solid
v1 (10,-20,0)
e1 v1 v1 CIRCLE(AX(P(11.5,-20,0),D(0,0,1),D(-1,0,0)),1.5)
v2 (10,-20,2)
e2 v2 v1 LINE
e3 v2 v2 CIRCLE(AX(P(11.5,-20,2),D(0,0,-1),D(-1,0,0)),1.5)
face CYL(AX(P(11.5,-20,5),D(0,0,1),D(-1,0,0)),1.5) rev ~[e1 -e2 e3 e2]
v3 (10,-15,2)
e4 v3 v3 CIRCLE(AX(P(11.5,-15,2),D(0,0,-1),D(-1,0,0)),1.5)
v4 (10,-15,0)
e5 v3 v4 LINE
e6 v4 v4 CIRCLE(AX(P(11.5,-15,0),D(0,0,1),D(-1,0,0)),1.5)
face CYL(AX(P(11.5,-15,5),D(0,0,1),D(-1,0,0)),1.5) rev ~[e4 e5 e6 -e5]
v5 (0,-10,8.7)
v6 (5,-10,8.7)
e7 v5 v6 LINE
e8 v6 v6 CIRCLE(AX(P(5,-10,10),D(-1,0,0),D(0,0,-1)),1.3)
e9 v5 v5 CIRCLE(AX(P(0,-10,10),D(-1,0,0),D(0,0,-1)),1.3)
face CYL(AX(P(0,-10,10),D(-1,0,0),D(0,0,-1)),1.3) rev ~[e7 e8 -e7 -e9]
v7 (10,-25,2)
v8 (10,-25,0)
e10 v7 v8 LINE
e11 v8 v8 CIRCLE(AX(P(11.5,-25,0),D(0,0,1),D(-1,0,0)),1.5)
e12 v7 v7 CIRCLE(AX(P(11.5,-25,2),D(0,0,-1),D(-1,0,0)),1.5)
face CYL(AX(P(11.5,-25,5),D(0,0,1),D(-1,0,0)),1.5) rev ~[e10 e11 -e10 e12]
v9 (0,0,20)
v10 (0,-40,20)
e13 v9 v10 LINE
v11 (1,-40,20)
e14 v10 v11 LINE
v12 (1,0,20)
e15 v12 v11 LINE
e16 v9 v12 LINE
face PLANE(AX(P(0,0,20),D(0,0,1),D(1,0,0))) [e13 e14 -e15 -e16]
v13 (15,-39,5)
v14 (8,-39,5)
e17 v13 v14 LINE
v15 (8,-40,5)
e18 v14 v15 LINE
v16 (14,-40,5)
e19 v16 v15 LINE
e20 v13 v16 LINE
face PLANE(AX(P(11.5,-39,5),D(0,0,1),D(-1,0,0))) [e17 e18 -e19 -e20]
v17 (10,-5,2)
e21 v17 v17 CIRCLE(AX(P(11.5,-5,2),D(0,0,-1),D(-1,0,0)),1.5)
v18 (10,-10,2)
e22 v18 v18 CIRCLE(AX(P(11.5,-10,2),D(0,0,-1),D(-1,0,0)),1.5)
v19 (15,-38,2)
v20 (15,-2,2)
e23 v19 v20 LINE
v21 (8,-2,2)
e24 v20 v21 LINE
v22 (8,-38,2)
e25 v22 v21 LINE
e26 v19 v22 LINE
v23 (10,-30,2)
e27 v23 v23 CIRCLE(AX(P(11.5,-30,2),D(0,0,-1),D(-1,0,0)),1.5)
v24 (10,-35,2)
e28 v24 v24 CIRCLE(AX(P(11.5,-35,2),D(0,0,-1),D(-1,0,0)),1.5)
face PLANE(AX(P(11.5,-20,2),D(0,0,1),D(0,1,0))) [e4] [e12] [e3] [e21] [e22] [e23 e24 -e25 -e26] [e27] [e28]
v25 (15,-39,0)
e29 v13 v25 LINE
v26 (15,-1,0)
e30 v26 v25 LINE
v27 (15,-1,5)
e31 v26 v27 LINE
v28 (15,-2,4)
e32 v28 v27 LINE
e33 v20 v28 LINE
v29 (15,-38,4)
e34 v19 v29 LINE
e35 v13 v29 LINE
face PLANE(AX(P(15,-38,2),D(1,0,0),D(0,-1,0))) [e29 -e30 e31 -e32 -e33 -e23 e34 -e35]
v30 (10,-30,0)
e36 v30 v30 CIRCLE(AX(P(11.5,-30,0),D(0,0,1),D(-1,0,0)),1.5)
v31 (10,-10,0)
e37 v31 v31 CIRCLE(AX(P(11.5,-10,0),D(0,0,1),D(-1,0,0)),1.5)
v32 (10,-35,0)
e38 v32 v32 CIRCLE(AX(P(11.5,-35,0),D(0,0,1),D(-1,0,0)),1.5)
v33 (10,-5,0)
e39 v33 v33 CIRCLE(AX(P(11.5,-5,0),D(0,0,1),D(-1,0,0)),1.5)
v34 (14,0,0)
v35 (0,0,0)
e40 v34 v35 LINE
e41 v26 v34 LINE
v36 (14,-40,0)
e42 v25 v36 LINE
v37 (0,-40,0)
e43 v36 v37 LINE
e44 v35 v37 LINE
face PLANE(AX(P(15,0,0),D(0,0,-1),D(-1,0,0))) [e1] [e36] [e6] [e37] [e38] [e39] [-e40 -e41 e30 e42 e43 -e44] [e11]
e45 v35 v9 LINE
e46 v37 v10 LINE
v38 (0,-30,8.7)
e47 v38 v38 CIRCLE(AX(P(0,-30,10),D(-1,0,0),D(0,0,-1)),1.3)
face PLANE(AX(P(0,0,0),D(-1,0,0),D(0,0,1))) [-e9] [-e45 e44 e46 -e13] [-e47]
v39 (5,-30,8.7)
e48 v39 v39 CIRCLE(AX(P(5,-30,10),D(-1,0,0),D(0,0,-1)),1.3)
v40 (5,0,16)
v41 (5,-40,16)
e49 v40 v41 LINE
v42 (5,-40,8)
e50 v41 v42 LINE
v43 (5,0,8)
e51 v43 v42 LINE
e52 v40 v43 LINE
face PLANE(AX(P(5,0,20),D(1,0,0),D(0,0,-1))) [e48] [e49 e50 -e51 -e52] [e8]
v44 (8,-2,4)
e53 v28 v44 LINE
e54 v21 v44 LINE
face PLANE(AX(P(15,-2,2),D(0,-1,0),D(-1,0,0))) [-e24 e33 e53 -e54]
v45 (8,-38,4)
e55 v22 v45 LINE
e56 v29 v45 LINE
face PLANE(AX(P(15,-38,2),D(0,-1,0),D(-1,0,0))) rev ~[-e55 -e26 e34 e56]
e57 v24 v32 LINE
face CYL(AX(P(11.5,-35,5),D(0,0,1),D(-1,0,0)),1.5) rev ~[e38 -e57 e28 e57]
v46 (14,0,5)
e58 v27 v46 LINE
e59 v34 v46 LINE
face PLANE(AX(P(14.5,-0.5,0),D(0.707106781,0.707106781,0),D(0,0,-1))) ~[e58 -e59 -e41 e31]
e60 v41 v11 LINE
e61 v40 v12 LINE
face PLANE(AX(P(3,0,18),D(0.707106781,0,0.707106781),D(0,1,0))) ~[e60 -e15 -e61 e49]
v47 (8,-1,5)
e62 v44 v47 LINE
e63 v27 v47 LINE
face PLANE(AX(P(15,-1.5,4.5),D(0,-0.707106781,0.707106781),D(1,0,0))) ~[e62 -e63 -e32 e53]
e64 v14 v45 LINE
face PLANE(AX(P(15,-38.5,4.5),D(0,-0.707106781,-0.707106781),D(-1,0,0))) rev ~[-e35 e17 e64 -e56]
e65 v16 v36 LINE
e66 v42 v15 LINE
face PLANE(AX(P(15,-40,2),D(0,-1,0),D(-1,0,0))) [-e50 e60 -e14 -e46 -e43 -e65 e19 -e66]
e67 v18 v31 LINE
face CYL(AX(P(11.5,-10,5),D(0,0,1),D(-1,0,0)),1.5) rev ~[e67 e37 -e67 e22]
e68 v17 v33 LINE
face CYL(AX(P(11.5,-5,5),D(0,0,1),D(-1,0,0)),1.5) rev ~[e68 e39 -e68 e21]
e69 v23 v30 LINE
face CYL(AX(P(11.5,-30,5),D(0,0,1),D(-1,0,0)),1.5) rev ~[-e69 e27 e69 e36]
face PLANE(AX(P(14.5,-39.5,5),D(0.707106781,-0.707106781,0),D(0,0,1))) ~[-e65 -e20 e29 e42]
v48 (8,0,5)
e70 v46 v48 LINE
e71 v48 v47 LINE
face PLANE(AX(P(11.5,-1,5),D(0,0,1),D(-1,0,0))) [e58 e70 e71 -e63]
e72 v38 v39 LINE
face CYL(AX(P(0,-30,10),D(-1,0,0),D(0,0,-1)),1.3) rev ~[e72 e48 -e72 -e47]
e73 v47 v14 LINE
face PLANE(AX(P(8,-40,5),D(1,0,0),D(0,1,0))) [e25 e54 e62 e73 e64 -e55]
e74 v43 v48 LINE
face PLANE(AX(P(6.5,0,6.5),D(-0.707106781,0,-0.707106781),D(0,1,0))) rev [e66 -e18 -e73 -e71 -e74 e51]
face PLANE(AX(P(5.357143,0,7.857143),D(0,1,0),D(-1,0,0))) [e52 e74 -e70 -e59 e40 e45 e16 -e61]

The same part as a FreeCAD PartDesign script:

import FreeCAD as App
import Part
import Sketcher

V = App.Vector


def edges_at(feature, points):
    """Names of the edges that pass closest to the given points."""
    edges = feature.Shape.Edges
    near = lambda p: min(range(len(edges)), key=lambda i: edges[i].distToShape(Part.Vertex(*p))[0])
    return sorted({f"Edge{near(p) + 1}" for p in points})


def add_polygon(sketch, points):
    """Adds a closed chain of lines whose ends are joined by coincident constraints."""
    first, n = sketch.GeometryCount, len(points)
    for a, b in zip(points, points[1:] + points[:1]):
        sketch.addGeometry(Part.LineSegment(App.Vector(*a, 0), App.Vector(*b, 0)), False)
    for i in range(n):
        sketch.addConstraint(Sketcher.Constraint("Coincident", first + i, 2, first + (i + 1) % n, 1))

doc = App.newDocument("Part")
body = doc.addObject("PartDesign::Body", "Body")

# Sketch on XZ plane
sketch1 = doc.addObject("Sketcher::SketchObject", "Sketch")
body.addObject(sketch1)
sketch1.AttachmentSupport = (doc.XZ_Plane, [""])
sketch1.MapMode = "FlatFace"
add_polygon(sketch1, [(0, 20), (0, 0), (15, 0), (15, 5), (5, 5), (5, 20)])  # lines 0-5
sketch1.addConstraint([
    Sketcher.Constraint("Vertical", 0),
    Sketcher.Constraint("Horizontal", 1),
    Sketcher.Constraint("Vertical", 2),
    Sketcher.Constraint("Horizontal", 3),
    Sketcher.Constraint("Vertical", 4),
    Sketcher.Constraint("Horizontal", 5),
    Sketcher.Constraint("Coincident", 0, 2, -1, 1),
    Sketcher.Constraint("Equal", 5, 2),
    Sketcher.Constraint("Equal", 1, 4),
    Sketcher.Constraint("DistanceX", 1, 1, 1, 2, 15.0),
    Sketcher.Constraint("DistanceX", 3, 2, 3, 1, 10.0),
])
pad1 = doc.addObject("PartDesign::Pad", "Pad")
body.addObject(pad1)
pad1.Profile = sketch1
pad1.Length = 40

# Sketch on YZ plane
sketch2 = doc.addObject("Sketcher::SketchObject", "Sketch001")
body.addObject(sketch2)
sketch2.AttachmentSupport = (doc.YZ_Plane, [""])
sketch2.MapMode = "FlatFace"
sketch2.addGeometry([
    Part.Circle(V(-30, 10, 0), V(0, 0, 1), 1.3),
    Part.Circle(V(-10, 10, 0), V(0, 0, 1), 1.3),
], False)
sketch2.addConstraint([
    Sketcher.Constraint("Equal", 0, 1),
    Sketcher.Constraint("Horizontal", 0, 3, 1, 3),
    Sketcher.Constraint("Diameter", 0, 2.6),
    Sketcher.Constraint("DistanceX", 0, 3, -1, 1, 30.0),
    Sketcher.Constraint("DistanceY", -1, 1, 0, 3, 10.0),
    Sketcher.Constraint("DistanceX", 1, 3, -1, 1, 10.0),
])
pocket1 = doc.addObject("PartDesign::Pocket", "Pocket")
body.addObject(pocket1)
pocket1.Profile = sketch2
pocket1.Length = 5
pocket1.Reversed = True
doc.recompute()

chamfer = doc.addObject("PartDesign::Chamfer", "Chamfer")
body.addObject(chamfer)
chamfer.Base = (pocket1, edges_at(pocket1, [(5, -20, 5)]))
chamfer.Size = 3
doc.recompute()

chamfer2 = doc.addObject("PartDesign::Chamfer", "Chamfer001")
body.addObject(chamfer2)
chamfer2.Base = (chamfer, edges_at(chamfer, [(5, -20, 20)]))
chamfer2.Size = 4

# Sketch on XY plane
sketch3 = doc.addObject("Sketcher::SketchObject", "Sketch002")
body.addObject(sketch3)
sketch3.AttachmentSupport = (doc.XY_Plane, [""])
sketch3.MapMode = "FlatFace"
sketch3.AttachmentOffset = App.Placement(V(0, 0, 5), App.Rotation())
sketch3.addGeometry([
    Part.Circle(V(11.5, -35, 0), V(0, 0, 1), 1.5),  # 0
    Part.Circle(V(11.5, -30, 0), V(0, 0, 1), 1.5),  # 1
    Part.Circle(V(11.5, -25, 0), V(0, 0, 1), 1.5),  # 2
    Part.Circle(V(11.5, -20, 0), V(0, 0, 1), 1.5),  # 3
    Part.Circle(V(11.5, -15, 0), V(0, 0, 1), 1.5),  # 4
    Part.Circle(V(11.5, -10, 0), V(0, 0, 1), 1.5),  # 5
    Part.Circle(V(11.5, -5, 0), V(0, 0, 1), 1.5),  # 6
], False)
sketch3.addConstraint([
    Sketcher.Constraint("Equal", 0, 1),
    Sketcher.Constraint("Equal", 1, 2),
    Sketcher.Constraint("Equal", 2, 3),
    Sketcher.Constraint("Equal", 3, 4),
    Sketcher.Constraint("Equal", 4, 5),
    Sketcher.Constraint("Equal", 5, 6),
    Sketcher.Constraint("Vertical", 0, 3, 1, 3),
    Sketcher.Constraint("Vertical", 1, 3, 2, 3),
    Sketcher.Constraint("Vertical", 2, 3, 3, 3),
    Sketcher.Constraint("Vertical", 3, 3, 4, 3),
    Sketcher.Constraint("Vertical", 4, 3, 5, 3),
    Sketcher.Constraint("Vertical", 5, 3, 6, 3),
    Sketcher.Constraint("Diameter", 0, 3.0),
    Sketcher.Constraint("DistanceY", 0, 3, -1, 1, 35.0),
    Sketcher.Constraint("DistanceY", 1, 3, -1, 1, 30.0),
    Sketcher.Constraint("DistanceY", 2, 3, -1, 1, 25.0),
    Sketcher.Constraint("DistanceY", 3, 3, -1, 1, 20.0),
    Sketcher.Constraint("DistanceY", 4, 3, -1, 1, 15.0),
    Sketcher.Constraint("DistanceY", 5, 3, -1, 1, 10.0),
    Sketcher.Constraint("DistanceY", 6, 3, -1, 1, 5.0),
    Sketcher.Constraint("DistanceX", -1, 1, 0, 3, 11.5),
])
pocket2 = doc.addObject("PartDesign::Pocket", "Pocket001")
body.addObject(pocket2)
pocket2.Profile = sketch3
pocket2.Type = "ThroughAll"

# Sketch on XY plane
sketch4 = doc.addObject("Sketcher::SketchObject", "Sketch003")
body.addObject(sketch4)
sketch4.AttachmentSupport = (doc.XY_Plane, [""])
sketch4.MapMode = "FlatFace"
sketch4.AttachmentOffset = App.Placement(V(0, 0, 5), App.Rotation())
add_polygon(sketch4, [(8, -40), (15, -40), (15, 0), (8, 0)])  # lines 0-3
sketch4.addGeometry(Part.Circle(V(11.5, -35, 0), V(0, 0, 1), 1.5), False)  # 4
sketch4.addGeometry(Part.Circle(V(11.5, -30, 0), V(0, 0, 1), 1.5), False)  # 5
sketch4.addGeometry(Part.Circle(V(11.5, -25, 0), V(0, 0, 1), 1.5), False)  # 6
sketch4.addGeometry(Part.Circle(V(11.5, -20, 0), V(0, 0, 1), 1.5), False)  # 7
sketch4.addGeometry(Part.Circle(V(11.5, -15, 0), V(0, 0, 1), 1.5), False)  # 8
sketch4.addGeometry(Part.Circle(V(11.5, -10, 0), V(0, 0, 1), 1.5), False)  # 9
sketch4.addGeometry(Part.Circle(V(11.5, -5, 0), V(0, 0, 1), 1.5), False)  # 10
sketch4.addConstraint([
    Sketcher.Constraint("Horizontal", 0),
    Sketcher.Constraint("Vertical", 1),
    Sketcher.Constraint("Horizontal", 2),
    Sketcher.Constraint("Vertical", 3),
    Sketcher.Constraint("Equal", 4, 5),
    Sketcher.Constraint("Equal", 5, 6),
    Sketcher.Constraint("Equal", 6, 7),
    Sketcher.Constraint("Equal", 7, 8),
    Sketcher.Constraint("Equal", 8, 9),
    Sketcher.Constraint("Equal", 9, 10),
    Sketcher.Constraint("PointOnObject", 1, 2, -1),
    Sketcher.Constraint("Vertical", 4, 3, 5, 3),
    Sketcher.Constraint("Vertical", 5, 3, 6, 3),
    Sketcher.Constraint("Vertical", 6, 3, 7, 3),
    Sketcher.Constraint("Vertical", 7, 3, 8, 3),
    Sketcher.Constraint("Vertical", 8, 3, 9, 3),
    Sketcher.Constraint("Vertical", 9, 3, 10, 3),
    Sketcher.Constraint("Diameter", 4, 3.0),
    Sketcher.Constraint("DistanceX", 0, 1, 0, 2, 7.0),
    Sketcher.Constraint("DistanceY", 1, 1, 1, 2, 40.0),
    Sketcher.Constraint("DistanceY", 4, 3, -1, 1, 35.0),
    Sketcher.Constraint("DistanceY", 5, 3, -1, 1, 30.0),
    Sketcher.Constraint("DistanceY", 6, 3, -1, 1, 25.0),
    Sketcher.Constraint("DistanceY", 7, 3, -1, 1, 20.0),
    Sketcher.Constraint("DistanceY", 8, 3, -1, 1, 15.0),
    Sketcher.Constraint("DistanceY", 9, 3, -1, 1, 10.0),
    Sketcher.Constraint("DistanceY", 10, 3, -1, 1, 5.0),
    Sketcher.Constraint("DistanceX", -1, 1, 0, 2, 15.0),
    Sketcher.Constraint("DistanceX", -1, 1, 4, 3, 11.5),
])
pocket3 = doc.addObject("PartDesign::Pocket", "Pocket002")
body.addObject(pocket3)
pocket3.Profile = sketch4
pocket3.Length = 3

# Sketch on XY plane
sketch5 = doc.addObject("Sketcher::SketchObject", "Sketch004")
body.addObject(sketch5)
sketch5.AttachmentSupport = (doc.XY_Plane, [""])
sketch5.MapMode = "FlatFace"
sketch5.AttachmentOffset = App.Placement(V(0, 0, 2), App.Rotation())
add_polygon(sketch5, [(15, -40), (15, -38), (8, -38), (8, -40)])  # lines 0-3
add_polygon(sketch5, [(15, -2), (15, 0), (8, 0), (8, -2)])  # lines 4-7
sketch5.addConstraint([
    Sketcher.Constraint("Vertical", 0),
    Sketcher.Constraint("Horizontal", 1),
    Sketcher.Constraint("Vertical", 2),
    Sketcher.Constraint("Horizontal", 3),
    Sketcher.Constraint("Vertical", 4),
    Sketcher.Constraint("Horizontal", 5),
    Sketcher.Constraint("Vertical", 6),
    Sketcher.Constraint("Horizontal", 7),
    Sketcher.Constraint("PointOnObject", 4, 2, -1),
    Sketcher.Constraint("Vertical", 3, 2, 4, 2),
    Sketcher.Constraint("Vertical", 2, 2, 5, 2),
    Sketcher.Constraint("Equal", 2, 4),
    Sketcher.Constraint("DistanceX", 1, 2, 1, 1, 7.0),
    Sketcher.Constraint("DistanceY", 0, 1, 0, 2, 2.0),
    Sketcher.Constraint("DistanceX", -1, 1, 0, 2, 15.0),
    Sketcher.Constraint("DistanceY", 0, 2, -1, 1, 38.0),
])
pad2 = doc.addObject("PartDesign::Pad", "Pad001")
body.addObject(pad2)
pad2.Profile = sketch5
pad2.Length = 3
doc.recompute()

chamfer3 = doc.addObject("PartDesign::Chamfer", "Chamfer002")
body.addObject(chamfer3)
chamfer3.Base = (pad2, edges_at(pad2, [(15, -40, 2.5), (15, 0, 2.5)]))
chamfer3.Size = 1
doc.recompute()

chamfer4 = doc.addObject("PartDesign::Chamfer", "Chamfer003")
body.addObject(chamfer4)
chamfer4.Base = (chamfer3, edges_at(chamfer3, [(11.5, -2, 5), (11.5, -38, 5)]))
chamfer4.Size = 1

doc.recompute()
